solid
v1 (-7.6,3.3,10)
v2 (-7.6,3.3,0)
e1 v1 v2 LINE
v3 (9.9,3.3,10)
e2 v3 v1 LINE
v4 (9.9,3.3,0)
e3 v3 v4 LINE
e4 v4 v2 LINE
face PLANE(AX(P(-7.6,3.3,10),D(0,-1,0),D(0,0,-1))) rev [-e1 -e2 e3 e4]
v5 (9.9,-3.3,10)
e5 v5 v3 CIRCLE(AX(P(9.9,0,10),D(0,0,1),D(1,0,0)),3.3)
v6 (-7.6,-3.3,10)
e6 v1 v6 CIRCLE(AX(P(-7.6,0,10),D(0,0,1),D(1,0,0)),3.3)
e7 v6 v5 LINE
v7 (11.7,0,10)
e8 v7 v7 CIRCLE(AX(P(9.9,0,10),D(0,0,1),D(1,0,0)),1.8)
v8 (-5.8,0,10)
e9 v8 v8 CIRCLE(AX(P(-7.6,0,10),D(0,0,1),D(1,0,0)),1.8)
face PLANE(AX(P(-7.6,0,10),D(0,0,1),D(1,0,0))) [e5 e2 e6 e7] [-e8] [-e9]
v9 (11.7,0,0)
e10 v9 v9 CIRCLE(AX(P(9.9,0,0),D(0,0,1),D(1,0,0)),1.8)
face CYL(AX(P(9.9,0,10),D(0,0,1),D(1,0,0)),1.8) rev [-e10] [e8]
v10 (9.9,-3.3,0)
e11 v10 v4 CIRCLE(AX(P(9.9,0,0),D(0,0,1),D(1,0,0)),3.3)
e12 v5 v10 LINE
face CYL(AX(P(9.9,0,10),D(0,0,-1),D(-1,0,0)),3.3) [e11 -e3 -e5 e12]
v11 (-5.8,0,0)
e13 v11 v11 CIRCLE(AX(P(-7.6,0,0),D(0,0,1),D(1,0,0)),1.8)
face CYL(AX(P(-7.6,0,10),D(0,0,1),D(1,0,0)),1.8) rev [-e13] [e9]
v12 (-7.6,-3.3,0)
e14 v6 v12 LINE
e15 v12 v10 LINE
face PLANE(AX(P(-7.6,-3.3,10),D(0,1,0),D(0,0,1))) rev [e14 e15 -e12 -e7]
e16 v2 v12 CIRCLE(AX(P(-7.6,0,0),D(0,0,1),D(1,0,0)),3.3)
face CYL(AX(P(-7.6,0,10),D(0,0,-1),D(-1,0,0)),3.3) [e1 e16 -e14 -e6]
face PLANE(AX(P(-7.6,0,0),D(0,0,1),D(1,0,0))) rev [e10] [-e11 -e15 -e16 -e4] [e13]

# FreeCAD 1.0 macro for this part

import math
import FreeCAD as App
import Part
import Sketcher
from FreeCAD import Vector
Q = App.Units.Quantity

doc = App.newDocument("Part")
body = doc.addObject("PartDesign::Body", "Body")

# Sketch on XY plane
sketch1 = body.newObject("Sketcher::SketchObject", "Sketch")
sketch1.AttachmentSupport = (doc.getObject("XY_Plane"), [""])
sketch1.MapMode = "FlatFace"
sketch1.addGeometry(Part.LineSegment(Vector(9.9, 3.3, 0), Vector(-7.6, 3.3, 0)), False)
sketch1.addGeometry(Part.ArcOfCircle(Part.Circle(Vector(-7.6, 0, 0), Vector(0, 0, 1), 3.3), math.radians(90), math.radians(270)), False)
sketch1.addGeometry(Part.LineSegment(Vector(-7.6, -3.3, 0), Vector(9.9, -3.3, 0)), False)
sketch1.addGeometry(Part.ArcOfCircle(Part.Circle(Vector(9.9, 0, 0), Vector(0, 0, 1), 3.3), math.radians(-90), math.radians(90)), False)
sketch1.addConstraint(Sketcher.Constraint("Tangent", 0, 2, 1, 1))
sketch1.addConstraint(Sketcher.Constraint("Tangent", 1, 2, 2, 1))
sketch1.addConstraint(Sketcher.Constraint("Tangent", 2, 2, 3, 1))
sketch1.addConstraint(Sketcher.Constraint("Tangent", 3, 2, 0, 1))
sketch1.addConstraint(Sketcher.Constraint("Horizontal", 0))
sketch1.addConstraint(Sketcher.Constraint("Horizontal", 2))
sketch1.addConstraint(Sketcher.Constraint("PointOnObject", 1, 3, -1))
sketch1.addConstraint(Sketcher.Constraint("Radius", 1, Q("3.3 mm")))
sketch1.addConstraint(Sketcher.Constraint("DistanceX", 0, 2, 0, 1, Q("17.5 mm")))
sketch1.addConstraint(Sketcher.Constraint("DistanceX", 1, 3, -1, 1, Q("7.6 mm")))
pad1 = body.newObject("PartDesign::Pad", "Pad")
pad1.Profile = sketch1
pad1.Length = 10

# Sketch on XY plane
sketch2 = body.newObject("Sketcher::SketchObject", "Sketch001")
sketch2.AttachmentSupport = (doc.getObject("XY_Plane"), [""])
sketch2.MapMode = "FlatFace"
sketch2.AttachmentOffset = App.Placement(Vector(0, 0, 10), App.Rotation())
sketch2.addGeometry(Part.Circle(Vector(-7.6, 0, 0), Vector(0, 0, 1), 1.8), False)
sketch2.addGeometry(Part.Circle(Vector(9.9, 0, 0), Vector(0, 0, 1), 1.8), False)
sketch2.addConstraint(Sketcher.Constraint("Equal", 0, 1))
sketch2.addConstraint(Sketcher.Constraint("PointOnObject", 0, 3, -1))
sketch2.addConstraint(Sketcher.Constraint("PointOnObject", 1, 3, -1))
sketch2.addConstraint(Sketcher.Constraint("Diameter", 0, Q("3.6 mm")))
sketch2.addConstraint(Sketcher.Constraint("DistanceX", 0, 3, -1, 1, Q("7.6 mm")))
sketch2.addConstraint(Sketcher.Constraint("DistanceX", -1, 1, 1, 3, Q("9.9 mm")))
doc.recompute()
hole = body.newObject("PartDesign::Hole", "Hole")
hole.Profile = sketch2
hole.ThreadType = "None"
hole.Diameter = 3.6
hole.DepthType = "ThroughAll"

doc.recompute()
